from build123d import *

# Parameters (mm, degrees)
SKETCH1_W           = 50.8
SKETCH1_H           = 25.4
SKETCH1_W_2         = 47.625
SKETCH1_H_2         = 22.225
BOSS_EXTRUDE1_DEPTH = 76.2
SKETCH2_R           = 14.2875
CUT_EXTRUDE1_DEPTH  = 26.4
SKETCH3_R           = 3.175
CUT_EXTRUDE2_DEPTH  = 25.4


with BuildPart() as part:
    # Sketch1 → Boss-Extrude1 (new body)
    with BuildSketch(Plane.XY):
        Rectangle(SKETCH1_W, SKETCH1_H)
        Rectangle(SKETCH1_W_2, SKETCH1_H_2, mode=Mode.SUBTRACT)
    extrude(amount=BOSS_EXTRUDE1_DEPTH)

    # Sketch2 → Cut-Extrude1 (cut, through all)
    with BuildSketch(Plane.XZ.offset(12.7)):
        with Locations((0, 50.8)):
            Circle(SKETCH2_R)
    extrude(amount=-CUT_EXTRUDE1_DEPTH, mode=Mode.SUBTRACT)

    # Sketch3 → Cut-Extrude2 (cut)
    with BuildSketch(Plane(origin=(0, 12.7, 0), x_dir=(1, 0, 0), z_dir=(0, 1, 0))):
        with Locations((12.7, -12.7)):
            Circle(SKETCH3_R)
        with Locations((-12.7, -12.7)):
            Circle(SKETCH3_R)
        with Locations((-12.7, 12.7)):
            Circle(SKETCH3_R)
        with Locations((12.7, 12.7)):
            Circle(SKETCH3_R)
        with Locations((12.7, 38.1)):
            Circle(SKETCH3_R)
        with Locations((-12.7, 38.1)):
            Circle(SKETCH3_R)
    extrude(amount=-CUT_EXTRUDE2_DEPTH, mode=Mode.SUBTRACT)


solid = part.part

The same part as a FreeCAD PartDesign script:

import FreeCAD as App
import Part
import Sketcher
from FreeCAD import Vector
Q = App.Units.Quantity


def add_polygon(sketch, points):
    """Adds a closed chain of lines whose ends are joined by coincident constraints."""
    first, n = sketch.GeometryCount, len(points)
    for a, b in zip(points, points[1:] + points[:1]):
        sketch.addGeometry(Part.LineSegment(App.Vector(*a, 0), App.Vector(*b, 0)), False)
    for i in range(n):
        sketch.addConstraint(Sketcher.Constraint("Coincident", first + i, 2, first + (i + 1) % n, 1))

doc = App.newDocument("Part")
body = doc.addObject("PartDesign::Body", "Body")

sketch1 = body.newObject("Sketcher::SketchObject", "Sketch")
sketch1.AttachmentSupport = (doc.getObject("XY_Plane"), [""])
sketch1.MapMode = "FlatFace"
add_polygon(sketch1, [(-25, 13), (-25, -13), (25, -13), (25, 13)])
add_polygon(sketch1, [(24, -11), (-24, -11), (-24, 11), (24, 11)])
sketch1.addConstraint(Sketcher.Constraint("Vertical", 0))
sketch1.addConstraint(Sketcher.Constraint("Horizontal", 1))
sketch1.addConstraint(Sketcher.Constraint("Vertical", 2))
sketch1.addConstraint(Sketcher.Constraint("Horizontal", 3))
sketch1.addConstraint(Sketcher.Constraint("Horizontal", 4))
sketch1.addConstraint(Sketcher.Constraint("Vertical", 5))
sketch1.addConstraint(Sketcher.Constraint("Horizontal", 6))
sketch1.addConstraint(Sketcher.Constraint("Vertical", 7))
sketch1.addConstraint(Sketcher.Constraint("Symmetric", 0, 2, 2, 2, -1, 1))
sketch1.addConstraint(Sketcher.Constraint("Symmetric", 4, 2, 6, 2, -1, 1))
sketch1.addConstraint(Sketcher.Constraint("DistanceX", 1, 1, 1, 2, Q("2 in")))
sketch1.addConstraint(Sketcher.Constraint("DistanceY", 0, 2, 0, 1, Q("1 in")))
sketch1.addConstraint(Sketcher.Constraint("DistanceX", 4, 2, 4, 1, Q("1.875 in")))
sketch1.addConstraint(Sketcher.Constraint("DistanceY", 5, 1, 5, 2, Q("0.875 in")))
pad1 = body.newObject("PartDesign::Pad", "Pad")
pad1.Profile = sketch1
pad1.Length = Q("3 in")

sketch2 = body.newObject("Sketcher::SketchObject", "Sketch001")
sketch2.AttachmentSupport = (doc.getObject("XZ_Plane"), [""])
sketch2.MapMode = "FlatFace"
sketch2.AttachmentOffset = App.Placement(Vector(0, 0, 0.5 * 25.4), App.Rotation())
sketch2.addGeometry(Part.Circle(Vector(0, 51, 0), Vector(0, 0, 1), 14), False)
sketch2.addConstraint(Sketcher.Constraint("PointOnObject", 0, 3, -2))
sketch2.addConstraint(Sketcher.Constraint("Diameter", 0, Q("1.125 in")))
sketch2.addConstraint(Sketcher.Constraint("DistanceY", -1, 1, 0, 3, Q("2 in")))
pocket1 = body.newObject("PartDesign::Pocket", "Pocket")
pocket1.Profile = sketch2
pocket1.Type = "ThroughAll"

sketch3 = body.newObject("Sketcher::SketchObject", "Sketch002")
sketch3.AttachmentSupport = (doc.getObject("XZ_Plane"), [""])
sketch3.MapMode = "FlatFace"
sketch3.AttachmentOffset = App.Placement(Vector(0, 0, -0.5 * 25.4), App.Rotation())
sketch3.addGeometry(Part.Circle(Vector(12.7, 12.7, 0), Vector(0, 0, 1), 3.2), False)
sketch3.addGeometry(Part.Circle(Vector(-12.7, 12.7, 0), Vector(0, 0, 1), 3.2), False)
sketch3.addGeometry(Part.Circle(Vector(-12.7, -12.7, 0), Vector(0, 0, 1), 3.2), False)
sketch3.addGeometry(Part.Circle(Vector(12.7, -12.7, 0), Vector(0, 0, 1), 3.2), False)
sketch3.addGeometry(Part.Circle(Vector(12.7, -38.1, 0), Vector(0, 0, 1), 3.2), False)
sketch3.addGeometry(Part.Circle(Vector(-12.7, -38.1, 0), Vector(0, 0, 1), 3.2), False)
sketch3.addConstraint(Sketcher.Constraint("Equal", 0, 1))
sketch3.addConstraint(Sketcher.Constraint("Equal", 1, 2))
sketch3.addConstraint(Sketcher.Constraint("Equal", 2, 3))
sketch3.addConstraint(Sketcher.Constraint("Equal", 3, 4))
sketch3.addConstraint(Sketcher.Constraint("Equal", 4, 5))
sketch3.addConstraint(Sketcher.Constraint("Symmetric", 0, 3, 2, 3, -1, 1))
sketch3.addConstraint(Sketcher.Constraint("Symmetric", 1, 3, 3, 3, -1, 1))
sketch3.addConstraint(Sketcher.Constraint("Symmetric", 0, 3, 1, 3, -2))
sketch3.addConstraint(Sketcher.Constraint("Symmetric", 4, 3, 5, 3, -2))
sketch3.addConstraint(Sketcher.Constraint("Vertical", 3, 3, 4, 3))
sketch3.addConstraint(Sketcher.Constraint("Diameter", 0, Q("0.25 in")))
sketch3.addConstraint(Sketcher.Constraint("DistanceX", 1, 3, 0, 3, Q("1 in")))
sketch3.addConstraint(Sketcher.Constraint("DistanceY", 2, 3, 1, 3, Q("1 in")))
sketch3.addConstraint(Sketcher.Constraint("DistanceY", 4, 3, 3, 3, Q("1 in")))
pocket2 = body.newObject("PartDesign::Pocket", "Pocket001")
pocket2.Profile = sketch3
pocket2.Length = Q("1 in")
pocket2.Reversed = True

doc.recompute()
